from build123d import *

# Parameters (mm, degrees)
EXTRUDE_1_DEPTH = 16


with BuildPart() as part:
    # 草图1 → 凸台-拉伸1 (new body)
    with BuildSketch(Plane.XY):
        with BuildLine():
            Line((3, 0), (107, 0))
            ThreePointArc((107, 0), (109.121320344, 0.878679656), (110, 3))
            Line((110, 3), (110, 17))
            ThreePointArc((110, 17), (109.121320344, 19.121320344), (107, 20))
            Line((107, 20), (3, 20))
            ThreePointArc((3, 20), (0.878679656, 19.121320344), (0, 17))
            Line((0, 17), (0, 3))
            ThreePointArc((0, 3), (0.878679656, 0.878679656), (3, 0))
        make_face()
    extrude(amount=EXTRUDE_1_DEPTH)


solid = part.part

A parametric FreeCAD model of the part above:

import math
import FreeCAD as App
import Part
import Sketcher
from FreeCAD import Vector
Q = App.Units.Quantity

doc = App.newDocument("Part")
params = doc.addObject("Spreadsheet::Sheet", "Params")
for row, (alias, value) in enumerate([
    ("sketch1_radius", "3 mm"),
    ("sketch1_width", "104 mm"),
    ("sketch1_height", "14 mm"),
    ("pad1_length", "16 mm"),
], start=1):
    params.set(f"A{row}", alias)
    params.set(f"B{row}", "=" + value)
    params.setAlias(f"B{row}", alias)

body = doc.addObject("PartDesign::Body", "Body")

sketch1 = body.newObject("Sketcher::SketchObject", "Sketch")
sketch1.AttachmentSupport = (doc.getObject("XY_Plane"), [""])
sketch1.MapMode = "FlatFace"
sketch1.addGeometry([
    Part.LineSegment(Vector(3, 0, 0), Vector(107, 0, 0)),
    Part.ArcOfCircle(Part.Circle(Vector(107, 3, 0), Vector(0, 0, 1), 3), math.radians(-90), math.radians(0)),
    Part.LineSegment(Vector(110, 3, 0), Vector(110, 17, 0)),
    Part.ArcOfCircle(Part.Circle(Vector(107, 17, 0), Vector(0, 0, 1), 3), math.radians(0), math.radians(90)),
    Part.LineSegment(Vector(107, 20, 0), Vector(3, 20, 0)),
    Part.ArcOfCircle(Part.Circle(Vector(3, 17, 0), Vector(0, 0, 1), 3), math.radians(90), math.radians(180)),
    Part.LineSegment(Vector(0, 17, 0), Vector(0, 3, 0)),
    Part.ArcOfCircle(Part.Circle(Vector(3, 3, 0), Vector(0, 0, 1), 3), math.radians(180), math.radians(270)),
], False)
sketch1.addConstraint([
    Sketcher.Constraint("Tangent", 0, 2, 1, 1),
    Sketcher.Constraint("Tangent", 1, 2, 2, 1),
    Sketcher.Constraint("Tangent", 2, 2, 3, 1),
    Sketcher.Constraint("Tangent", 3, 2, 4, 1),
    Sketcher.Constraint("Tangent", 4, 2, 5, 1),
    Sketcher.Constraint("Tangent", 5, 2, 6, 1),
    Sketcher.Constraint("Tangent", 6, 2, 7, 1),
    Sketcher.Constraint("Tangent", 7, 2, 0, 1),
    Sketcher.Constraint("Horizontal", 0),
    Sketcher.Constraint("Vertical", 2),
    Sketcher.Constraint("Horizontal", 4),
    Sketcher.Constraint("Vertical", 6),
    Sketcher.Constraint("Equal", 1, 3),
    Sketcher.Constraint("Equal", 3, 5),
    Sketcher.Constraint("Equal", 5, 7),
    Sketcher.Constraint("PointOnObject", 0, 2, -1),
    Sketcher.Constraint("PointOnObject", 5, 2, -2),
    Sketcher.Constraint("Radius", 1, Q("3 mm")),
    Sketcher.Constraint("DistanceX", 0, 1, 0, 2, Q("104 mm")),
    Sketcher.Constraint("DistanceY", 2, 1, 2, 2, Q("14 mm")),
])
sketch1.setExpression("Constraints[17]", "Params.sketch1_radius")
sketch1.setExpression("Constraints[18]", "Params.sketch1_width")
sketch1.setExpression("Constraints[19]", "Params.sketch1_height")
pad1 = body.newObject("PartDesign::Pad", "Pad")
pad1.Profile = sketch1
pad1.setExpression("Length", "Params.pad1_length")

doc.recompute()
